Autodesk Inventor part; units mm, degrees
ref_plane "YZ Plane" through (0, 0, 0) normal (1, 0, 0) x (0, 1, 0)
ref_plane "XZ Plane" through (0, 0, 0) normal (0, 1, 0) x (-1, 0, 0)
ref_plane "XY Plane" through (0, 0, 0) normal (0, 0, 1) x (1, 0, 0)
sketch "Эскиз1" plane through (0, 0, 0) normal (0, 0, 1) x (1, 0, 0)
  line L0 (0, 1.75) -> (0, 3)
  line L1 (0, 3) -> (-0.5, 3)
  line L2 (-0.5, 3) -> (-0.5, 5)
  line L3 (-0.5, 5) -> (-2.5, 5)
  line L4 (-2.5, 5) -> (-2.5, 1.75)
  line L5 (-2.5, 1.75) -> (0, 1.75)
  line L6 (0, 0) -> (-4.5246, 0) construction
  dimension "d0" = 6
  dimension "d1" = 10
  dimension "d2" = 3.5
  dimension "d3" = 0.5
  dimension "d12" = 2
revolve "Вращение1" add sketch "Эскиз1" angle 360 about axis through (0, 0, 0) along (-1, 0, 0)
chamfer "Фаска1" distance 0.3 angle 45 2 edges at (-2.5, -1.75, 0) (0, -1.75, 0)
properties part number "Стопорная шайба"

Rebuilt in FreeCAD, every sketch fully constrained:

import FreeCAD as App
import Part
import Sketcher


def edges_at(feature, points):
    """Names of the edges that pass closest to the given points."""
    edges = feature.Shape.Edges
    near = lambda p: min(range(len(edges)), key=lambda i: edges[i].distToShape(Part.Vertex(*p))[0])
    return sorted({f"Edge{near(p) + 1}" for p in points})


def add_polygon(sketch, points):
    """Adds a closed chain of lines whose ends are joined by coincident constraints."""
    first, n = sketch.GeometryCount, len(points)
    for a, b in zip(points, points[1:] + points[:1]):
        sketch.addGeometry(Part.LineSegment(App.Vector(*a, 0), App.Vector(*b, 0)), False)
    for i in range(n):
        sketch.addConstraint(Sketcher.Constraint("Coincident", first + i, 2, first + (i + 1) % n, 1))

doc = App.newDocument("Part")
body = doc.addObject("PartDesign::Body", "Body")

# Sketch on XY plane
sketch1 = body.newObject("Sketcher::SketchObject", "Sketch")
sketch1.AttachmentSupport = (doc.getObject("XY_Plane"), [""])
sketch1.MapMode = "FlatFace"
add_polygon(sketch1, [(-2.5, 1.8), (0, 1.8), (0, 3), (-0.5, 3), (-0.5, 5), (-2.5, 5)])  # lines 0-5
sketch1.addConstraint(Sketcher.Constraint("Horizontal", 0))
sketch1.addConstraint(Sketcher.Constraint("Vertical", 1))
sketch1.addConstraint(Sketcher.Constraint("Horizontal", 2))
sketch1.addConstraint(Sketcher.Constraint("Vertical", 3))
sketch1.addConstraint(Sketcher.Constraint("Horizontal", 4))
sketch1.addConstraint(Sketcher.Constraint("Vertical", 5))
sketch1.addConstraint(Sketcher.Constraint("PointOnObject", 0, 2, -2))
sketch1.addConstraint(Sketcher.Constraint("Equal", 4, 3))
sketch1.addConstraint(Sketcher.Constraint("DistanceX", 4, 2, 4, 1, 2.0))
sketch1.addConstraint(Sketcher.Constraint("DistanceX", 2, 2, 2, 1, 0.5))
sketch1.addConstraint(Sketcher.Constraint("DistanceY", -1, 1, 1, 2, 3.0))
sketch1.addConstraint(Sketcher.Constraint("DistanceY", 1, 1, 1, 2, 1.25))
revolution = body.newObject("PartDesign::Revolution", "Revolution")
revolution.Profile = sketch1
revolution.ReferenceAxis = (sketch1, ["H_Axis"])
revolution.Angle = 360
doc.recompute()

chamfer = body.newObject("PartDesign::Chamfer", "Chamfer")
chamfer.Base = (revolution, edges_at(revolution, [(-2.5, -1.75, 0), (0, -1.75, 0)]))
chamfer.Size = 0.3

doc.recompute()
